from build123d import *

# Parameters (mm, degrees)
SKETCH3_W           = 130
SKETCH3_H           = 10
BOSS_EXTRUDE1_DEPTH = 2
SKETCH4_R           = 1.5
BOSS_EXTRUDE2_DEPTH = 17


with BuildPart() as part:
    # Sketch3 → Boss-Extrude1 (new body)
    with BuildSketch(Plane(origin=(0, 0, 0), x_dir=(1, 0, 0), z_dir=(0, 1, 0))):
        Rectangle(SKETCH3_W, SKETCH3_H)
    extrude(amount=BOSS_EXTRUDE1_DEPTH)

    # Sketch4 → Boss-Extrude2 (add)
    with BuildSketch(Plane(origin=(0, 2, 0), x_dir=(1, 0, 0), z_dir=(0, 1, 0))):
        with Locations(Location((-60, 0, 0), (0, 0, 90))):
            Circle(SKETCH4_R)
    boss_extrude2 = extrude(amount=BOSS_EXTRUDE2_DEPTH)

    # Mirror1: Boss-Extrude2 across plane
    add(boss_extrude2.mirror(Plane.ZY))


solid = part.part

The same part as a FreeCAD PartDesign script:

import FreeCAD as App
import Part
import Sketcher

V = App.Vector
Q = App.Units.Quantity

doc = App.newDocument("Part")
body = doc.addObject("PartDesign::Body", "Body")

sketch1 = body.newObject("Sketcher::SketchObject", "Sketch")
sketch1.AttachmentSupport = (doc.getObject("XZ_Plane"), [""])
sketch1.MapMode = "FlatFace"
sketch1.addGeometry([
    Part.LineSegment(V(-65, -5, 0), V(-65, 5, 0)),
    Part.LineSegment(V(-65, 5, 0), V(65, 5, 0)),
    Part.LineSegment(V(65, 5, 0), V(65, -5, 0)),
    Part.LineSegment(V(65, -5, 0), V(-65, -5, 0)),
], False)
sketch1.addConstraint([
    Sketcher.Constraint("Coincident", 0, 2, 1, 1),
    Sketcher.Constraint("Coincident", 1, 2, 2, 1),
    Sketcher.Constraint("Coincident", 2, 2, 3, 1),
    Sketcher.Constraint("Coincident", 3, 2, 0, 1),
    Sketcher.Constraint("Vertical", 0),
    Sketcher.Constraint("Horizontal", 1),
    Sketcher.Constraint("Vertical", 2),
    Sketcher.Constraint("Horizontal", 3),
    Sketcher.Constraint("Symmetric", 0, 2, 2, 2, -1, 1),
    Sketcher.Constraint("DistanceX", 1, 1, 1, 2, Q("130 mm")),
    Sketcher.Constraint("DistanceY", 0, 1, 0, 2, Q("10 mm")),
])
pad1 = body.newObject("PartDesign::Pad", "Pad")
pad1.Profile = sketch1
pad1.Length = 2
pad1.Reversed = True

sketch2 = body.newObject("Sketcher::SketchObject", "Sketch001")
sketch2.AttachmentSupport = (doc.getObject("XZ_Plane"), [""])
sketch2.MapMode = "FlatFace"
sketch2.AttachmentOffset = App.Placement(V(0, 0, -2), App.Rotation())
sketch2.addGeometry(Part.Circle(V(-60, 0, 0), V(0, 0, 1), 1.5), False)
sketch2.addConstraint([
    Sketcher.Constraint("PointOnObject", 0, 3, -1),
    Sketcher.Constraint("Diameter", 0, Q("3 mm")),
    Sketcher.Constraint("DistanceX", 0, 3, -1, 1, Q("60 mm")),
])
pad2 = body.newObject("PartDesign::Pad", "Pad001")
pad2.Profile = sketch2
pad2.Length = 17
pad2.Reversed = True
doc.recompute()

mirrored = body.newObject("PartDesign::Mirrored", "Mirrored")
mirrored.Originals = [pad2]
mirrored.MirrorPlane = (doc.getObject("YZ_Plane"), [""])
body.Tip = mirrored

doc.recompute()
